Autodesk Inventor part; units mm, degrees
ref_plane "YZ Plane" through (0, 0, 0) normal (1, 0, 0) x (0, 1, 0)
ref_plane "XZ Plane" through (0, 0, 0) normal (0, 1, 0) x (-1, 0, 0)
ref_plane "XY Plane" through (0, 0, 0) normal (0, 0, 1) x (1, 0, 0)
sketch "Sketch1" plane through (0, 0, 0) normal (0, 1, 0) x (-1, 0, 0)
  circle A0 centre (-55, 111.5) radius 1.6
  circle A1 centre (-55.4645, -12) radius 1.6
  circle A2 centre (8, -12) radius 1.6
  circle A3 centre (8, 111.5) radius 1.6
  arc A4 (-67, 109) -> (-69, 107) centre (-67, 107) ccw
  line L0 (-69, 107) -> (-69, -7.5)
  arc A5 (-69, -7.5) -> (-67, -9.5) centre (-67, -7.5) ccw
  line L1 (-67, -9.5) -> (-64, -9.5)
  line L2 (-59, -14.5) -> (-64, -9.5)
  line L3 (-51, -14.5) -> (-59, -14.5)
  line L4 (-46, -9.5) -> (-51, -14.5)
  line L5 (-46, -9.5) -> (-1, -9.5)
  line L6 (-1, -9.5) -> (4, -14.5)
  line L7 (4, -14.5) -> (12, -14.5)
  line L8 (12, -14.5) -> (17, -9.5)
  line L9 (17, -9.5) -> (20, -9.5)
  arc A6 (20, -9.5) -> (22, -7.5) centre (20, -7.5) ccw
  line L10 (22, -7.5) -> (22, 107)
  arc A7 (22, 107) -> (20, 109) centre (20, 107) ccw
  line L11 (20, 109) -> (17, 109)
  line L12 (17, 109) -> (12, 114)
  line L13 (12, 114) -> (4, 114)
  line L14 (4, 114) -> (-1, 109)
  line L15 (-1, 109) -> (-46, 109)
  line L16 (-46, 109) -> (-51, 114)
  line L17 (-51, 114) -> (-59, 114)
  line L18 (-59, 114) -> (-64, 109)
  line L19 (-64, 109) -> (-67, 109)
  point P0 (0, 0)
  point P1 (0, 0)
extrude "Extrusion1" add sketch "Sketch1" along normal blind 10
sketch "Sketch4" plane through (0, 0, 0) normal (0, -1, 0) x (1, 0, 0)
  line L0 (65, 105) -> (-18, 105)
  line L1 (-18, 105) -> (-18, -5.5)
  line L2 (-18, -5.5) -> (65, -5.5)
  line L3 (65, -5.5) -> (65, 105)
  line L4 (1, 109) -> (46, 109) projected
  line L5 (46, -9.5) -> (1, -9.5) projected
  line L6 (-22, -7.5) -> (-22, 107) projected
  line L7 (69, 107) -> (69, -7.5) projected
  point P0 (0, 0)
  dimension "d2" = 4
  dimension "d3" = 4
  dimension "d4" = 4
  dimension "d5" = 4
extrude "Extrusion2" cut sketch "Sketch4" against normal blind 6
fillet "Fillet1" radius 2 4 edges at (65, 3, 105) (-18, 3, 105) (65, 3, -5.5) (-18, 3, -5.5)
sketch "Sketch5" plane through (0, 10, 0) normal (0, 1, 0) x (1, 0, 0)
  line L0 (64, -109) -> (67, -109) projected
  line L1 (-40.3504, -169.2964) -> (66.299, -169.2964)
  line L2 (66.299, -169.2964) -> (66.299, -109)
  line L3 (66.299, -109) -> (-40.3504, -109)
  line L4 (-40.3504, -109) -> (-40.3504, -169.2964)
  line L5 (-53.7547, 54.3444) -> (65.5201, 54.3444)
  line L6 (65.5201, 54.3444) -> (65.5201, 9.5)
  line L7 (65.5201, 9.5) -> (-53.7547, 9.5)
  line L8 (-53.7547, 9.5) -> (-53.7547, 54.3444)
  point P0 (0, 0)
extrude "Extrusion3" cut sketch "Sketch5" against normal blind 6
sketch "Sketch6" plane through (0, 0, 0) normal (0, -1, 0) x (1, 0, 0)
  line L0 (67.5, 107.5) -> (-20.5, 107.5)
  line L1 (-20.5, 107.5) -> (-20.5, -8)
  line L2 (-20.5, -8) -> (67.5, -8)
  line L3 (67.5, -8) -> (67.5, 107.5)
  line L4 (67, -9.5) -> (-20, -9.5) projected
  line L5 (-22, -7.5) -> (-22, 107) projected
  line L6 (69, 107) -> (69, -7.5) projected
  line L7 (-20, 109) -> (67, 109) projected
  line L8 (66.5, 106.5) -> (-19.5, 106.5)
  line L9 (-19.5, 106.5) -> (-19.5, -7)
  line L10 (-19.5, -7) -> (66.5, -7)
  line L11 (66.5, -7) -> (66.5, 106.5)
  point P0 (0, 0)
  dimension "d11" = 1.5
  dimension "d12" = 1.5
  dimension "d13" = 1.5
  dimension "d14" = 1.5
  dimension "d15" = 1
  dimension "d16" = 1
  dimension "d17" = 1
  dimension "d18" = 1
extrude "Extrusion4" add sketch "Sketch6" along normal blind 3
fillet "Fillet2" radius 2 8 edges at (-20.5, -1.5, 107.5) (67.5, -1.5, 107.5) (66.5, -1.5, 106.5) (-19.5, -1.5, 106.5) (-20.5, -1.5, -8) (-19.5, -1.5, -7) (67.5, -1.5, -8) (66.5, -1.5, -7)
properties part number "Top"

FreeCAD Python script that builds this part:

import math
import FreeCAD as App
import Part
import Sketcher


def edges_at(feature, points):
    """Names of the edges that pass closest to the given points."""
    edges = feature.Shape.Edges
    near = lambda p: min(range(len(edges)), key=lambda i: edges[i].distToShape(Part.Vertex(*p))[0])
    return sorted({f"Edge{near(p) + 1}" for p in points})


def add_polygon(sketch, points):
    """Adds a closed chain of lines whose ends are joined by coincident constraints."""
    first, n = sketch.GeometryCount, len(points)
    for a, b in zip(points, points[1:] + points[:1]):
        sketch.addGeometry(Part.LineSegment(App.Vector(*a, 0), App.Vector(*b, 0)), False)
    for i in range(n):
        sketch.addConstraint(Sketcher.Constraint("Coincident", first + i, 2, first + (i + 1) % n, 1))

doc = App.newDocument("Part")
params = doc.addObject("Spreadsheet::Sheet", "Params")
for row, (alias, value) in enumerate([
    ("sketch1_radius", "2 mm"),
    ("sketch1_diameter", "3.2 mm"),
    ("sketch1_width", "3 mm"),
    ("sketch1_width2", "8 mm"),
    ("sketch1_width3", "45 mm"),
    ("pad1_length", "10 mm"),
    ("sketch2_width", "83 mm"),
    ("sketch2_height", "110.5 mm"),
    ("pocket1_length", "6 mm"),
    ("fillet_radius", "2 mm"),
    ("pocket2_length", "6 mm"),
    ("sketch4_width", "88 mm"),
    ("sketch4_height", "115.5 mm"),
    ("pad2_length", "3 mm"),
    ("fillet2_radius", "2 mm"),
], start=1):
    params.set(f"A{row}", alias)
    params.set(f"B{row}", "=" + value)
    params.setAlias(f"B{row}", alias)

body = doc.addObject("PartDesign::Body", "Body")

# Sketch on XZ plane
sketch1 = body.newObject("Sketcher::SketchObject", "Sketch")
sketch1.AttachmentSupport = (doc.getObject("XZ_Plane"), [""])
sketch1.MapMode = "FlatFace"
sketch1.addGeometry([
    Part.LineSegment(App.Vector(64, 109, 0), App.Vector(67, 109, 0)),  # 0
    Part.ArcOfCircle(Part.Circle(App.Vector(67, 107, 0), App.Vector(0, 0, 1), 2), math.radians(0), math.radians(90)),  # 1
    Part.LineSegment(App.Vector(69, 107, 0), App.Vector(69, -7.5, 0)),  # 2
    Part.ArcOfCircle(Part.Circle(App.Vector(67, -7.5, 0), App.Vector(0, 0, 1), 2), math.radians(-90), math.radians(0)),  # 3
    Part.LineSegment(App.Vector(67, -9.5, 0), App.Vector(64, -9.5, 0)),  # 4
    Part.LineSegment(App.Vector(64, -9.5, 0), App.Vector(59, -14.5, 0)),  # 5
    Part.LineSegment(App.Vector(59, -14.5, 0), App.Vector(51, -14.5, 0)),  # 6
    Part.LineSegment(App.Vector(51, -14.5, 0), App.Vector(46, -9.5, 0)),  # 7
    Part.LineSegment(App.Vector(46, -9.5, 0), App.Vector(1, -9.5, 0)),  # 8
    Part.LineSegment(App.Vector(1, -9.5, 0), App.Vector(-4, -14.5, 0)),  # 9
    Part.LineSegment(App.Vector(-4, -14.5, 0), App.Vector(-12, -14.5, 0)),  # 10
    Part.LineSegment(App.Vector(-12, -14.5, 0), App.Vector(-17, -9.5, 0)),  # 11
    Part.LineSegment(App.Vector(-17, -9.5, 0), App.Vector(-20, -9.5, 0)),  # 12
    Part.ArcOfCircle(Part.Circle(App.Vector(-20, -7.5, 0), App.Vector(0, 0, 1), 2), math.radians(180), math.radians(270)),  # 13
    Part.LineSegment(App.Vector(-22, -7.5, 0), App.Vector(-22, 107, 0)),  # 14
    Part.ArcOfCircle(Part.Circle(App.Vector(-20, 107, 0), App.Vector(0, 0, 1), 2), math.radians(90), math.radians(180)),  # 15
    Part.LineSegment(App.Vector(-20, 109, 0), App.Vector(-17, 109, 0)),  # 16
    Part.LineSegment(App.Vector(-17, 109, 0), App.Vector(-12, 114, 0)),  # 17
    Part.LineSegment(App.Vector(-12, 114, 0), App.Vector(-4, 114, 0)),  # 18
    Part.LineSegment(App.Vector(-4, 114, 0), App.Vector(1, 109, 0)),  # 19
    Part.LineSegment(App.Vector(1, 109, 0), App.Vector(46, 109, 0)),  # 20
    Part.LineSegment(App.Vector(46, 109, 0), App.Vector(51, 114, 0)),  # 21
    Part.LineSegment(App.Vector(51, 114, 0), App.Vector(59, 114, 0)),  # 22
    Part.LineSegment(App.Vector(59, 114, 0), App.Vector(64, 109, 0)),  # 23
    Part.Circle(App.Vector(55.5, -12, 0), App.Vector(0, 0, 1), 1.6),  # 24
    Part.Circle(App.Vector(-8, -12, 0), App.Vector(0, 0, 1), 1.6),  # 25
    Part.Circle(App.Vector(55, 111.5, 0), App.Vector(0, 0, 1), 1.6),  # 26
    Part.Circle(App.Vector(-8, 111.5, 0), App.Vector(0, 0, 1), 1.6),  # 27
], False)
sketch1.addConstraint([
    Sketcher.Constraint("Tangent", 0, 2, 1, 2),
    Sketcher.Constraint("Tangent", 1, 1, 2, 1),
    Sketcher.Constraint("Tangent", 2, 2, 3, 2),
    Sketcher.Constraint("Tangent", 3, 1, 4, 1),
    Sketcher.Constraint("Coincident", 4, 2, 5, 1),
    Sketcher.Constraint("Coincident", 5, 2, 6, 1),
    Sketcher.Constraint("Coincident", 6, 2, 7, 1),
    Sketcher.Constraint("Coincident", 7, 2, 8, 1),
    Sketcher.Constraint("Coincident", 8, 2, 9, 1),
    Sketcher.Constraint("Coincident", 9, 2, 10, 1),
    Sketcher.Constraint("Coincident", 10, 2, 11, 1),
    Sketcher.Constraint("Coincident", 11, 2, 12, 1),
    Sketcher.Constraint("Tangent", 12, 2, 13, 2),
    Sketcher.Constraint("Tangent", 13, 1, 14, 1),
    Sketcher.Constraint("Tangent", 14, 2, 15, 2),
    Sketcher.Constraint("Tangent", 15, 1, 16, 1),
    Sketcher.Constraint("Coincident", 16, 2, 17, 1),
    Sketcher.Constraint("Coincident", 17, 2, 18, 1),
    Sketcher.Constraint("Coincident", 18, 2, 19, 1),
    Sketcher.Constraint("Coincident", 19, 2, 20, 1),
    Sketcher.Constraint("Coincident", 20, 2, 21, 1),
    Sketcher.Constraint("Coincident", 21, 2, 22, 1),
    Sketcher.Constraint("Coincident", 22, 2, 23, 1),
    Sketcher.Constraint("Coincident", 23, 2, 0, 1),
    Sketcher.Constraint("Horizontal", 0),
    Sketcher.Constraint("Vertical", 2),
    Sketcher.Constraint("Horizontal", 4),
    Sketcher.Constraint("Horizontal", 6),
    Sketcher.Constraint("Horizontal", 8),
    Sketcher.Constraint("Horizontal", 10),
    Sketcher.Constraint("Horizontal", 12),
    Sketcher.Constraint("Vertical", 14),
    Sketcher.Constraint("Horizontal", 16),
    Sketcher.Constraint("Horizontal", 18),
    Sketcher.Constraint("Horizontal", 20),
    Sketcher.Constraint("Horizontal", 22),
    Sketcher.Constraint("Equal", 1, 3),
    Sketcher.Constraint("Equal", 3, 13),
    Sketcher.Constraint("Equal", 13, 15),
    Sketcher.Constraint("Equal", 24, 25),
    Sketcher.Constraint("Equal", 25, 26),
    Sketcher.Constraint("Equal", 26, 27),
    Sketcher.Constraint("Perpendicular", 5, 7),
    Sketcher.Constraint("Perpendicular", 7, 9),
    Sketcher.Constraint("Perpendicular", 9, 11),
    Sketcher.Constraint("Perpendicular", 11, 17),
    Sketcher.Constraint("Perpendicular", 17, 19),
    Sketcher.Constraint("Perpendicular", 19, 21),
    Sketcher.Constraint("Perpendicular", 21, 23),
    Sketcher.Constraint("Horizontal", 3, 3, 13, 3),
    Sketcher.Constraint("Horizontal", 1, 3, 15, 3),
    Sketcher.Constraint("Horizontal", 24, 3, 25, 3),
    Sketcher.Constraint("Horizontal", 26, 3, 27, 3),
    Sketcher.Constraint("Horizontal", 4, 2, 7, 2),
    Sketcher.Constraint("Horizontal", 6, 2, 9, 2),
    Sketcher.Constraint("Horizontal", 16, 2, 19, 2),
    Sketcher.Constraint("Horizontal", 18, 2, 21, 2),
    Sketcher.Constraint("Vertical", 25, 3, 27, 3),
    Sketcher.Constraint("Vertical", 11, 2, 16, 2),
    Sketcher.Constraint("Vertical", 10, 2, 17, 2),
    Sketcher.Constraint("Vertical", 9, 2, 18, 2),
    Sketcher.Constraint("Vertical", 8, 2, 19, 2),
    Sketcher.Constraint("Vertical", 7, 2, 20, 2),
    Sketcher.Constraint("Vertical", 5, 2, 22, 2),
    Sketcher.Constraint("Equal", 6, 10),
    Sketcher.Constraint("Equal", 4, 12),
    Sketcher.Constraint("Radius", 1, 2.0),
    Sketcher.Constraint("Diameter", 24, 3.2),
    Sketcher.Constraint("DistanceX", 0, 1, 0, 2, 3.0),
    Sketcher.Constraint("DistanceX", 6, 2, 6, 1, 8.0),
    Sketcher.Constraint("DistanceX", 8, 2, 8, 1, 45.0),
    Sketcher.Constraint("DistanceY", 2, 2, 2, 1, 114.5),
    Sketcher.Constraint("DistanceX", -1, 1, 1, 3, 67.0),
    Sketcher.Constraint("DistanceY", -1, 1, 1, 3, 107.0),
    Sketcher.Constraint("DistanceX", 13, 3, -1, 1, 20.0),
    Sketcher.Constraint("DistanceY", 24, 3, -1, 1, 12.0),
    Sketcher.Constraint("DistanceX", 25, 3, -1, 1, 8.0),
    Sketcher.Constraint("DistanceX", -1, 1, 26, 3, 55.0),
    Sketcher.Constraint("DistanceY", 3, 3, 26, 3, 119.0),
    Sketcher.Constraint("DistanceX", -1, 1, 24, 3, 55.4645),
])
sketch1.setExpression("Constraints[66]", "Params.sketch1_radius")
sketch1.setExpression("Constraints[67]", "Params.sketch1_diameter")
sketch1.setExpression("Constraints[68]", "Params.sketch1_width")
sketch1.setExpression("Constraints[69]", "Params.sketch1_width2")
sketch1.setExpression("Constraints[70]", "Params.sketch1_width3")
pad1 = body.newObject("PartDesign::Pad", "Pad")
pad1.Profile = sketch1
pad1.setExpression("Length", "Params.pad1_length")
pad1.Reversed = True

# Sketch on XZ plane
sketch2 = body.newObject("Sketcher::SketchObject", "Sketch001")
sketch2.AttachmentSupport = (doc.getObject("XZ_Plane"), [""])
sketch2.MapMode = "FlatFace"
add_polygon(sketch2, [(65, -6), (65, 105), (-18, 105), (-18, -6)])  # lines 0-3
sketch2.addConstraint([
    Sketcher.Constraint("Vertical", 0),
    Sketcher.Constraint("Horizontal", 1),
    Sketcher.Constraint("Vertical", 2),
    Sketcher.Constraint("Horizontal", 3),
    Sketcher.Constraint("DistanceX", 1, 2, 1, 1, 83.0),
    Sketcher.Constraint("DistanceY", 0, 1, 0, 2, 110.5),
    Sketcher.Constraint("DistanceX", -1, 1, 0, 2, 65.0),
    Sketcher.Constraint("DistanceY", -1, 1, 0, 2, 105.0),
])
sketch2.setExpression("Constraints[8]", "Params.sketch2_width")
sketch2.setExpression("Constraints[9]", "Params.sketch2_height")
pocket1 = body.newObject("PartDesign::Pocket", "Pocket")
pocket1.Profile = sketch2
pocket1.setExpression("Length", "Params.pocket1_length")
doc.recompute()

fillet = body.newObject("PartDesign::Fillet", "Fillet")
fillet.Base = (pocket1, edges_at(pocket1, [
    (65, 3, 105),
    (-18, 3, 105),
    (65, 3, -5.5),
    (-18, 3, -5.5),
]))
fillet.setExpression("Radius", "Params.fillet_radius")

# Sketch on XZ plane
sketch3 = body.newObject("Sketcher::SketchObject", "Sketch002")
sketch3.AttachmentSupport = (doc.getObject("XZ_Plane"), [""])
sketch3.MapMode = "FlatFace"
sketch3.AttachmentOffset = App.Placement(App.Vector(0, 0, -10), App.Rotation())
add_polygon(sketch3, [(66, 109), (-40, 109), (-40, 169), (66, 169)])  # lines 0-3
add_polygon(sketch3, [(66, -54), (-54, -54), (-54, -10), (66, -10)])  # lines 4-7
sketch3.addConstraint([
    Sketcher.Constraint("Horizontal", 0),
    Sketcher.Constraint("Vertical", 1),
    Sketcher.Constraint("Horizontal", 2),
    Sketcher.Constraint("Vertical", 3),
    Sketcher.Constraint("Horizontal", 4),
    Sketcher.Constraint("Vertical", 5),
    Sketcher.Constraint("Horizontal", 6),
    Sketcher.Constraint("Vertical", 7),
    Sketcher.Constraint("DistanceY", -1, 1, 0, 2, 109.0),
    Sketcher.Constraint("DistanceY", 5, 2, -1, 1, 9.5),
    Sketcher.Constraint("DistanceX", -1, 1, 6, 2, 65.52),
    Sketcher.Constraint("DistanceX", 0, 2, 0, 1, 106.6494),
    Sketcher.Constraint("DistanceX", 4, 2, 4, 1, 119.2748),
    Sketcher.Constraint("DistanceY", 1, 1, 1, 2, 60.2964),
    Sketcher.Constraint("DistanceY", 5, 1, 5, 2, 44.8444),
    Sketcher.Constraint("DistanceX", -1, 1, 2, 2, 66.299),
])
pocket2 = body.newObject("PartDesign::Pocket", "Pocket001")
pocket2.Profile = sketch3
pocket2.setExpression("Length", "Params.pocket2_length")
pocket2.Reversed = True

# Sketch on XZ plane
sketch4 = body.newObject("Sketcher::SketchObject", "Sketch003")
sketch4.AttachmentSupport = (doc.getObject("XZ_Plane"), [""])
sketch4.MapMode = "FlatFace"
add_polygon(sketch4, [(68, -8), (68, 108), (-20, 108), (-20, -8)])  # lines 0-3
add_polygon(sketch4, [(-20, 106), (66, 106), (66, -7), (-20, -7)])  # lines 4-7
sketch4.addConstraint([
    Sketcher.Constraint("Vertical", 0),
    Sketcher.Constraint("Horizontal", 1),
    Sketcher.Constraint("Vertical", 2),
    Sketcher.Constraint("Horizontal", 3),
    Sketcher.Constraint("Horizontal", 4),
    Sketcher.Constraint("Vertical", 5),
    Sketcher.Constraint("Horizontal", 6),
    Sketcher.Constraint("Vertical", 7),
    Sketcher.Constraint("DistanceX", 4, 2, 0, 2, 1.0),
    Sketcher.Constraint("DistanceY", 4, 2, 0, 2, 1.0),
    Sketcher.Constraint("DistanceY", 3, 2, 5, 2, 1.0),
    Sketcher.Constraint("DistanceX", 2, 2, 6, 2, 1.0),
    Sketcher.Constraint("DistanceX", 1, 2, 1, 1, 88.0),
    Sketcher.Constraint("DistanceY", 0, 1, 0, 2, 115.5),
    Sketcher.Constraint("DistanceY", 2, 2, -1, 1, 8.0),
    Sketcher.Constraint("DistanceX", -1, 1, 0, 2, 67.5),
])
sketch4.setExpression("Constraints[20]", "Params.sketch4_width")
sketch4.setExpression("Constraints[21]", "Params.sketch4_height")
pad2 = body.newObject("PartDesign::Pad", "Pad001")
pad2.Profile = sketch4
pad2.setExpression("Length", "Params.pad2_length")
doc.recompute()

fillet2 = body.newObject("PartDesign::Fillet", "Fillet001")
fillet2.Base = (pad2, edges_at(pad2, [
    (-20.5, -1.5, 107.5),
    (67.5, -1.5, 107.5),
    (66.5, -1.5, 106.5),
    (-19.5, -1.5, 106.5),
    (-20.5, -1.5, -8),
    (-19.5, -1.5, -7),
    (67.5, -1.5, -8),
    (66.5, -1.5, -7),
]))
fillet2.setExpression("Radius", "Params.fillet2_radius")

doc.recompute()
